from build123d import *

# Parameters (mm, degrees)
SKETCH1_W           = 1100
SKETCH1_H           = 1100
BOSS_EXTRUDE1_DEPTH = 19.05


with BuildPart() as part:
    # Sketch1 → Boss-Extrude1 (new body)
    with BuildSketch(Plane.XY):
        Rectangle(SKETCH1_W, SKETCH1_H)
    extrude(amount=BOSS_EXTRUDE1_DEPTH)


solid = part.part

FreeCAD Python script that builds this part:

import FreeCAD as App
import Part
import Sketcher
from FreeCAD import Vector
Q = App.Units.Quantity


def add_polygon(sketch, points):
    """Adds a closed chain of lines whose ends are joined by coincident constraints."""
    first, n = sketch.GeometryCount, len(points)
    for a, b in zip(points, points[1:] + points[:1]):
        sketch.addGeometry(Part.LineSegment(App.Vector(*a, 0), App.Vector(*b, 0)), False)
    for i in range(n):
        sketch.addConstraint(Sketcher.Constraint("Coincident", first + i, 2, first + (i + 1) % n, 1))

doc = App.newDocument("Part")
body = doc.addObject("PartDesign::Body", "Body")

# Sketch on XY plane
sketch1 = body.newObject("Sketcher::SketchObject", "Sketch")
sketch1.AttachmentSupport = (doc.getObject("XY_Plane"), [""])
sketch1.MapMode = "FlatFace"
add_polygon(sketch1, [(-550, 550), (-550, -550), (550, -550), (550, 550)])  # lines 0-3
sketch1.addConstraint([
    Sketcher.Constraint("Vertical", 0),
    Sketcher.Constraint("Horizontal", 1),
    Sketcher.Constraint("Vertical", 2),
    Sketcher.Constraint("Horizontal", 3),
    Sketcher.Constraint("Symmetric", 0, 2, 2, 2, -1, 1),
    Sketcher.Constraint("Equal", 3, 0),
    Sketcher.Constraint("DistanceX", 1, 1, 1, 2, Q("1100 mm")),
])
pad1 = body.newObject("PartDesign::Pad", "Pad")
pad1.Profile = sketch1
pad1.Length = 19.05

doc.recompute()
